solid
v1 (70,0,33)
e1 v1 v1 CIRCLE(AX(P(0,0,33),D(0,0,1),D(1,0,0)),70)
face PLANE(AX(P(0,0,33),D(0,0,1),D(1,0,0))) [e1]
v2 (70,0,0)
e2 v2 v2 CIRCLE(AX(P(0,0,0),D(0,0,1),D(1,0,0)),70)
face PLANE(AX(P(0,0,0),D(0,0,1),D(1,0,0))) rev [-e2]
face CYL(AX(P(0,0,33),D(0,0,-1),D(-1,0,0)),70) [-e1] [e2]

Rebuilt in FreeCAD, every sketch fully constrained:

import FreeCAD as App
import Part
import Sketcher
from FreeCAD import Vector
Q = App.Units.Quantity

doc = App.newDocument("Part")
body = doc.addObject("PartDesign::Body", "Body")

# Sketch on XY plane
sketch1 = body.newObject("Sketcher::SketchObject", "Sketch")
sketch1.AttachmentSupport = (doc.getObject("XY_Plane"), [""])
sketch1.MapMode = "FlatFace"
sketch1.addGeometry(Part.Circle(Vector(0, 0, 0), Vector(0, 0, 1), 70), False)
sketch1.addConstraint(Sketcher.Constraint("Coincident", 0, 3, -1, 1))
sketch1.addConstraint(Sketcher.Constraint("Diameter", 0, Q("140 mm")))
pad1 = body.newObject("PartDesign::Pad", "Pad")
pad1.Profile = sketch1
pad1.Length = 33

doc.recompute()
